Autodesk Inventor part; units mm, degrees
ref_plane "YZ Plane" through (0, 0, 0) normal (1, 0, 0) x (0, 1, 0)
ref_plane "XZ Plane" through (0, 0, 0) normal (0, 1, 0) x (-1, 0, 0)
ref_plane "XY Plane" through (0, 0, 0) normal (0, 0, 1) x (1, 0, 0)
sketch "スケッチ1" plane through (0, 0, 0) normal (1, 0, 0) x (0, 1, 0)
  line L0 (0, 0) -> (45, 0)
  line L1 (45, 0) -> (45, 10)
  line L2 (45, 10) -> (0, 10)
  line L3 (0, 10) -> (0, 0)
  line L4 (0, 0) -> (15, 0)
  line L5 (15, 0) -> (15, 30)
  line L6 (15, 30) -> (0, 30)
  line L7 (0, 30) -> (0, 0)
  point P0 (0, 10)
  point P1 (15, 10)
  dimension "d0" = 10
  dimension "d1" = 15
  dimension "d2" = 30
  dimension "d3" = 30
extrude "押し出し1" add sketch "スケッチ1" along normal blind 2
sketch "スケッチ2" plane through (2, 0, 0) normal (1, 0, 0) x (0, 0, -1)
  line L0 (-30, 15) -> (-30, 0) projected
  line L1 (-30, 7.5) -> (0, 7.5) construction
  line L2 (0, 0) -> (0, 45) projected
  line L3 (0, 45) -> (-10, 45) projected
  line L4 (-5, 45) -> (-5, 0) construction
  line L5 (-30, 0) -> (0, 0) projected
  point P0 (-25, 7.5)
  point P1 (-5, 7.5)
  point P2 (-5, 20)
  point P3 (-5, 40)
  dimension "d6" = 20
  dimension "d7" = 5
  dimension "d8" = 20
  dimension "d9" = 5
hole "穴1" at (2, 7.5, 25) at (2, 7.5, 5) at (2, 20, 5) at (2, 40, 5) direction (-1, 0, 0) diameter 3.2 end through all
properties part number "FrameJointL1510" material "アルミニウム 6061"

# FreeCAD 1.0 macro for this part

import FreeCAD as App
import Part
import Sketcher

V = App.Vector
Q = App.Units.Quantity


def add_polygon(sketch, points):
    """Adds a closed chain of lines whose ends are joined by coincident constraints."""
    first, n = sketch.GeometryCount, len(points)
    for a, b in zip(points, points[1:] + points[:1]):
        sketch.addGeometry(Part.LineSegment(App.Vector(*a, 0), App.Vector(*b, 0)), False)
    for i in range(n):
        sketch.addConstraint(Sketcher.Constraint("Coincident", first + i, 2, first + (i + 1) % n, 1))

doc = App.newDocument("Part")
params = doc.addObject("Spreadsheet::Sheet", "Params")
for row, (alias, value) in enumerate([
    ("sketch1_width", "30 mm"),
    ("sketch1_width2", "15 mm"),
    ("sketch1_height", "10 mm"),
    ("pad1_length", "2 mm"),
    ("sketch2_diameter", "3.2 mm"),
    ("hole_diameter", "3.2 mm"),
], start=1):
    params.set(f"A{row}", alias)
    params.set(f"B{row}", "=" + value)
    params.setAlias(f"B{row}", alias)

body = doc.addObject("PartDesign::Body", "Body")

# Sketch on YZ plane
sketch1 = body.newObject("Sketcher::SketchObject", "Sketch")
sketch1.AttachmentSupport = (doc.getObject("YZ_Plane"), [""])
sketch1.MapMode = "FlatFace"
add_polygon(sketch1, [(0, 0), (45, 0), (45, 10), (15, 10), (15, 30), (0, 30)])  # lines 0-5
sketch1.addConstraint(Sketcher.Constraint("Horizontal", 0))
sketch1.addConstraint(Sketcher.Constraint("Vertical", 1))
sketch1.addConstraint(Sketcher.Constraint("Horizontal", 2))
sketch1.addConstraint(Sketcher.Constraint("Vertical", 3))
sketch1.addConstraint(Sketcher.Constraint("Horizontal", 4))
sketch1.addConstraint(Sketcher.Constraint("Vertical", 5))
sketch1.addConstraint(Sketcher.Constraint("Coincident", 5, 2, -1, 1))
sketch1.addConstraint(Sketcher.Constraint("Equal", 2, 5))
sketch1.addConstraint(Sketcher.Constraint("DistanceX", 2, 2, 2, 1, Q("30 mm")))
sketch1.addConstraint(Sketcher.Constraint("DistanceX", 4, 2, 4, 1, Q("15 mm")))
sketch1.addConstraint(Sketcher.Constraint("DistanceY", 1, 1, 1, 2, Q("10 mm")))
sketch1.setExpression("Constraints[14]", "Params.sketch1_width")
sketch1.setExpression("Constraints[15]", "Params.sketch1_width2")
sketch1.setExpression("Constraints[16]", "Params.sketch1_height")
pad1 = body.newObject("PartDesign::Pad", "Pad")
pad1.Profile = sketch1
pad1.setExpression("Length", "Params.pad1_length")

# Sketch on YZ plane
sketch2 = body.newObject("Sketcher::SketchObject", "Sketch001")
sketch2.AttachmentSupport = (doc.getObject("YZ_Plane"), [""])
sketch2.MapMode = "FlatFace"
sketch2.AttachmentOffset = App.Placement(V(0, 0, 2), App.Rotation())
sketch2.addGeometry(Part.Circle(V(7.5, 25, 0), V(0, 0, 1), 1.6), False)
sketch2.addGeometry(Part.Circle(V(7.5, 5, 0), V(0, 0, 1), 1.6), False)
sketch2.addGeometry(Part.Circle(V(20, 5, 0), V(0, 0, 1), 1.6), False)
sketch2.addGeometry(Part.Circle(V(40, 5, 0), V(0, 0, 1), 1.6), False)
sketch2.addConstraint(Sketcher.Constraint("Equal", 0, 1))
sketch2.addConstraint(Sketcher.Constraint("Equal", 1, 2))
sketch2.addConstraint(Sketcher.Constraint("Equal", 2, 3))
sketch2.addConstraint(Sketcher.Constraint("Horizontal", 1, 3, 2, 3))
sketch2.addConstraint(Sketcher.Constraint("Horizontal", 2, 3, 3, 3))
sketch2.addConstraint(Sketcher.Constraint("Vertical", 0, 3, 1, 3))
sketch2.addConstraint(Sketcher.Constraint("Diameter", 0, Q("3.2 mm")))
sketch2.addConstraint(Sketcher.Constraint("DistanceY", -1, 1, 0, 3, Q("25 mm")))
sketch2.addConstraint(Sketcher.Constraint("DistanceY", -1, 1, 1, 3, Q("5 mm")))
sketch2.addConstraint(Sketcher.Constraint("DistanceX", -1, 1, 2, 3, Q("20 mm")))
sketch2.addConstraint(Sketcher.Constraint("DistanceX", -1, 1, 3, 3, Q("40 mm")))
sketch2.addConstraint(Sketcher.Constraint("DistanceX", -1, 1, 0, 3, Q("7.5 mm")))
sketch2.setExpression("Constraints[6]", "Params.sketch2_diameter")
doc.recompute()
hole = body.newObject("PartDesign::Hole", "Hole")
hole.Profile = sketch2
hole.ThreadType = "None"
hole.setExpression("Diameter", "Params.hole_diameter")
hole.DepthType = "ThroughAll"

doc.recompute()
